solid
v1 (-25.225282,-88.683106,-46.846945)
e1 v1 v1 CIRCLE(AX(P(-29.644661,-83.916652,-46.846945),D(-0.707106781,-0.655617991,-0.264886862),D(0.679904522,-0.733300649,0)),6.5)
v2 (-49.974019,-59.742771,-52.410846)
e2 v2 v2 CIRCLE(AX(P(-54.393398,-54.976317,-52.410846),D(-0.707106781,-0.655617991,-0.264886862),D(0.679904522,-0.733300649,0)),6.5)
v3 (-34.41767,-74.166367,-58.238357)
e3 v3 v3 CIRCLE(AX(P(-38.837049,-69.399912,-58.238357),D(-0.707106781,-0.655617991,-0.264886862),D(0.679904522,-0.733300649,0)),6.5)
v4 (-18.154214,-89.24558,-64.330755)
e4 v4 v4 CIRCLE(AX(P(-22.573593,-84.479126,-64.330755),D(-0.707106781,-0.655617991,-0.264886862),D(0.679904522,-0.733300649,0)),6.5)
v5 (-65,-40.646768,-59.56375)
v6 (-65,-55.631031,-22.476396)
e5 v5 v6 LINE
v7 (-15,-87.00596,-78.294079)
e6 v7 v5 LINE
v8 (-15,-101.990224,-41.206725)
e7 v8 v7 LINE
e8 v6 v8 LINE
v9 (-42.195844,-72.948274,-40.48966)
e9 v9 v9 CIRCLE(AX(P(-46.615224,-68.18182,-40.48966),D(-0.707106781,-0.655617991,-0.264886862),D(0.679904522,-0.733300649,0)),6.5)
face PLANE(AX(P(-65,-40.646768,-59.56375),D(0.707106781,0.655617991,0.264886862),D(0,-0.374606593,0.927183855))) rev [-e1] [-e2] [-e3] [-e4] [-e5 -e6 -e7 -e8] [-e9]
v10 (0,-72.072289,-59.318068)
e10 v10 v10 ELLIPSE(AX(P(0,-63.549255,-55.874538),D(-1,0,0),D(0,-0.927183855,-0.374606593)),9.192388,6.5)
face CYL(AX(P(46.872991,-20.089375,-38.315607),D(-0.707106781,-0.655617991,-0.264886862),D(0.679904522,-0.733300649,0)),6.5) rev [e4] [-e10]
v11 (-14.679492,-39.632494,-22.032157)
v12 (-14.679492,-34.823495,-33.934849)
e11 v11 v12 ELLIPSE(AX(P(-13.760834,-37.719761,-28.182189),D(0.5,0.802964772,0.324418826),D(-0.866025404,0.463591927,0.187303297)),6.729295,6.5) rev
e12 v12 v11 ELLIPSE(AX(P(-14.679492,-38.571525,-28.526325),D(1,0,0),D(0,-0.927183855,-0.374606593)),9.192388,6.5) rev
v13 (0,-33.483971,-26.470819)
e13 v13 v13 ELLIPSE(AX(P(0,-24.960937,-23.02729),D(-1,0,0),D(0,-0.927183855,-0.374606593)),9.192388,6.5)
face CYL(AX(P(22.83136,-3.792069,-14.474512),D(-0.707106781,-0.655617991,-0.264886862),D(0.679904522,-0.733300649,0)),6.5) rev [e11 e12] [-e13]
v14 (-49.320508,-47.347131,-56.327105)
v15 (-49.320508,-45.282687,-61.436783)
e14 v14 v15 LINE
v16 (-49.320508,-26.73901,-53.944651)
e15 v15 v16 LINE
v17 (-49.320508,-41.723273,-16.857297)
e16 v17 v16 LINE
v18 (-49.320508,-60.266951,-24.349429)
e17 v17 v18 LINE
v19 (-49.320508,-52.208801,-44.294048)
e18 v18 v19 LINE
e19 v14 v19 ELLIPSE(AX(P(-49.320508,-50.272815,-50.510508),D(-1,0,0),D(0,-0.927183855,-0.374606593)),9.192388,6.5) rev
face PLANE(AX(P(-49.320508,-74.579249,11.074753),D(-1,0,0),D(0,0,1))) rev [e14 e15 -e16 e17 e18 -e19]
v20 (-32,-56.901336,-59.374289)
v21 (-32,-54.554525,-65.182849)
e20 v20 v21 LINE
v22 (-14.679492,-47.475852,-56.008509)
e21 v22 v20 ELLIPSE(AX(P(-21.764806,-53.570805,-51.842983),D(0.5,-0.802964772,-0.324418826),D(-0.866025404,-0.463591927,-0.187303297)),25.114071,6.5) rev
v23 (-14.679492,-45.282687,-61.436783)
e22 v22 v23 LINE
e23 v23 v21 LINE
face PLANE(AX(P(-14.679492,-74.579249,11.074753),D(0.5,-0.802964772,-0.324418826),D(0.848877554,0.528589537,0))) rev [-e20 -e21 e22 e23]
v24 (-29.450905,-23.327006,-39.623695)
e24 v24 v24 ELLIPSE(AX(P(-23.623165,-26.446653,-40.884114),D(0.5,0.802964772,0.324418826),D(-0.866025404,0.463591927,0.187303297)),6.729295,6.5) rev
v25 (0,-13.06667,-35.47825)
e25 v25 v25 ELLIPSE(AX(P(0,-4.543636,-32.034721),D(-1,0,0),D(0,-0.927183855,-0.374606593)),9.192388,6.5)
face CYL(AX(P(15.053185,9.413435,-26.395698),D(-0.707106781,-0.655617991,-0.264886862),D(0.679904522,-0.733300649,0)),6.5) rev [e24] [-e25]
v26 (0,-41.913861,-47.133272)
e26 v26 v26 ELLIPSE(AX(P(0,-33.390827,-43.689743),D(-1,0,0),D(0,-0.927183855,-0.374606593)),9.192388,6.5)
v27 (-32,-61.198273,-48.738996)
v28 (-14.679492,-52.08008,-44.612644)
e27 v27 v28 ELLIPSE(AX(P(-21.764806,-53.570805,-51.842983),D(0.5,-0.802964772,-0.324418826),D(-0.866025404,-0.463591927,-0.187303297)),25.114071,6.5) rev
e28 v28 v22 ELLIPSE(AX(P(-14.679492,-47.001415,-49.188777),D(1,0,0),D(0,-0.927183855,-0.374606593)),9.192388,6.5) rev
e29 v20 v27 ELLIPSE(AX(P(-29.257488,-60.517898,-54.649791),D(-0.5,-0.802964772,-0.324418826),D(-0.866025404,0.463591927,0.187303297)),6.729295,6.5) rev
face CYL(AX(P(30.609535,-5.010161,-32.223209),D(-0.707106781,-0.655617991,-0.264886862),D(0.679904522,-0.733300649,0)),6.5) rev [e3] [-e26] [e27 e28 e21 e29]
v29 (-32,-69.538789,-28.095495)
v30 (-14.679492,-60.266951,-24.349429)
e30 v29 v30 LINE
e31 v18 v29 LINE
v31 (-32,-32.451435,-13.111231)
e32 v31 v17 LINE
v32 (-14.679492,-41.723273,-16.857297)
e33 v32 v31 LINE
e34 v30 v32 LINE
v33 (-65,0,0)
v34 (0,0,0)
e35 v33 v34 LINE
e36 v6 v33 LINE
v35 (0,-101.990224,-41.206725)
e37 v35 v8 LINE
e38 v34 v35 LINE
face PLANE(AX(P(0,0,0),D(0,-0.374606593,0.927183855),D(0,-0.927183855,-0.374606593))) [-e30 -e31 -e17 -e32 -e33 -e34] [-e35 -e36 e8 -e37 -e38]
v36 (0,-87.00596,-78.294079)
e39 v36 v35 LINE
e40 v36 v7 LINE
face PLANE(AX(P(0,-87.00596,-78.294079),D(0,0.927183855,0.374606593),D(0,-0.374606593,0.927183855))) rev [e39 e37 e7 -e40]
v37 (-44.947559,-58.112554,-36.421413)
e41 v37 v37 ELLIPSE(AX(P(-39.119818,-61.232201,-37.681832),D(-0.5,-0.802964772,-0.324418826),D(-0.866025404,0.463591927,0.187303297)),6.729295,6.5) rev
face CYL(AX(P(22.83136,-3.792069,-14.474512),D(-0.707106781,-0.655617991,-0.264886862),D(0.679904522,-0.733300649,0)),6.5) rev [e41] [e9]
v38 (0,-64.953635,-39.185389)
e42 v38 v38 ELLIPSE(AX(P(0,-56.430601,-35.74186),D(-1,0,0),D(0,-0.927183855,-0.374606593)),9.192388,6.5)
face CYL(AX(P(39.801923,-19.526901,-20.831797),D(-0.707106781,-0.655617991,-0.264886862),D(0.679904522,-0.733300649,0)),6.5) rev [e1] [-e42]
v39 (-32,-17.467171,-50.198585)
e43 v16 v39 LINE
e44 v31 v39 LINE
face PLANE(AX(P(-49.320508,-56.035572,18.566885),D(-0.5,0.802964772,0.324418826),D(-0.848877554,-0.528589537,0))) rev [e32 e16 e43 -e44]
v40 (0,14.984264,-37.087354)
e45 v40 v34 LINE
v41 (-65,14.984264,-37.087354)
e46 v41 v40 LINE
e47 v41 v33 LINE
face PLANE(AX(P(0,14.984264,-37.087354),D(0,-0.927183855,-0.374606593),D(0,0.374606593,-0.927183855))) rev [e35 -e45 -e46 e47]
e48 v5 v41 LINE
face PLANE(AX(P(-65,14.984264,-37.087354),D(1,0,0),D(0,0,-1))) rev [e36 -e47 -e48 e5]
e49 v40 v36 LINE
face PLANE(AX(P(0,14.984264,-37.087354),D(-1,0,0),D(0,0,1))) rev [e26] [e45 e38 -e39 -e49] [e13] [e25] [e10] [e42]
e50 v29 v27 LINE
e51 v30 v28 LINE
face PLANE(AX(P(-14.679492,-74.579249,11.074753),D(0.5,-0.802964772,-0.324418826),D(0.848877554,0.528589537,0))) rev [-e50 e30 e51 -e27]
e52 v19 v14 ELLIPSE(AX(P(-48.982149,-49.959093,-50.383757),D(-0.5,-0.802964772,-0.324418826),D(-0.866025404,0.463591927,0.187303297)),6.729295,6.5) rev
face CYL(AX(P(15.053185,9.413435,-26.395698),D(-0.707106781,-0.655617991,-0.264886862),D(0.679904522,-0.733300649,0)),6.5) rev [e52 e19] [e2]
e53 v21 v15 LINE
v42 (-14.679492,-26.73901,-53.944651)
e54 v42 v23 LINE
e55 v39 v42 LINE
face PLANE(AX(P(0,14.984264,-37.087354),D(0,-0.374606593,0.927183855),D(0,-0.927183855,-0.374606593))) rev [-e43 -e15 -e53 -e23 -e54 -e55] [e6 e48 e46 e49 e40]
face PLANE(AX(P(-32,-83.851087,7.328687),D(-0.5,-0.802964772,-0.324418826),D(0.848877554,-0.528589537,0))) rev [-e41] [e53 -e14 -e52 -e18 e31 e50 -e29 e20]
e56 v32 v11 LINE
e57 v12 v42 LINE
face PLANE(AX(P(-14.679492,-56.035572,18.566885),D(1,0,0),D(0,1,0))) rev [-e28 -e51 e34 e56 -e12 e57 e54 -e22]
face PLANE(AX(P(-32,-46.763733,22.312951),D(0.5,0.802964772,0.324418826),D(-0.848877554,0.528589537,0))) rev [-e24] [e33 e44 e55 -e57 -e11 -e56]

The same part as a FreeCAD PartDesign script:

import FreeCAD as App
import Part
import Sketcher
from FreeCAD import Vector
Q = App.Units.Quantity


def edges_at(feature, points):
    """Names of the edges that pass closest to the given points."""
    edges = feature.Shape.Edges
    near = lambda p: min(range(len(edges)), key=lambda i: edges[i].distToShape(Part.Vertex(*p))[0])
    return sorted({f"Edge{near(p) + 1}" for p in points})


def add_polygon(sketch, points):
    """Adds a closed chain of lines whose ends are joined by coincident constraints."""
    first, n = sketch.GeometryCount, len(points)
    for a, b in zip(points, points[1:] + points[:1]):
        sketch.addGeometry(Part.LineSegment(App.Vector(*a, 0), App.Vector(*b, 0)), False)
    for i in range(n):
        sketch.addConstraint(Sketcher.Constraint("Coincident", first + i, 2, first + (i + 1) % n, 1))

doc = App.newDocument("Part")
body = doc.addObject("PartDesign::Body", "Body")

sketch1 = doc.addObject("Sketcher::SketchObject", "Sketch")
body.addObject(sketch1)
sketch1.Placement = App.Placement(Vector(0, 0, 0), App.Rotation(Vector(0, -0.927183855, -0.374606593), Vector(-1, 0, 0), Vector(0, 0.374606593, -0.927183855), "ZXY"))
add_polygon(sketch1, [(0, 65), (0, 0), (110, 0), (110, 65)])
sketch1.addConstraint([
    Sketcher.Constraint("Vertical", 0),
    Sketcher.Constraint("Horizontal", 1),
    Sketcher.Constraint("Vertical", 2),
    Sketcher.Constraint("Horizontal", 3),
    Sketcher.Constraint("Coincident", 0, 2, -1, 1),
    Sketcher.Constraint("DistanceX", 1, 1, 1, 2, 110.0),
    Sketcher.Constraint("DistanceY", 0, 2, 0, 1, 65.0),
])
pad1 = doc.addObject("PartDesign::Pad", "Pad")
body.addObject(pad1)
pad1.Profile = sketch1
pad1.Length = 40
doc.recompute()

chamfer = doc.addObject("PartDesign::Chamfer", "Chamfer")
body.addObject(chamfer)
chamfer.Base = (pad1, edges_at(pad1, [(-65, -94.498, -59.75)]))
chamfer.Size = 50

sketch2 = doc.addObject("Sketcher::SketchObject", "Sketch001")
body.addObject(sketch2)
sketch2.Placement = App.Placement(Vector(-62.5, -57.948991, -23.412912), App.Rotation(Vector(0.194241708, 0.180097776, -0.964279498), Vector(0.679904522, -0.733300648, 0), Vector(-0.707106781, -0.655617991, -0.264886862), "ZXY"))
sketch2.addGeometry([
    Part.Circle(Vector(24.302117, 41.380596, 0), Vector(0, 0, 1), 6.5),
    Part.Circle(Vector(36.115509, 24.485515, 0), Vector(0, 0, 1), 6.5),
    Part.Circle(Vector(17.709335, 18.303871, 0), Vector(0, 0, 1), 6.5),
    Part.Circle(Vector(30.072126, 3.331851, 0), Vector(0, 0, 1), 6.5),
    Part.Circle(Vector(42.433592, 46.60071, 0), Vector(0, 0, 1), 6.5),
], False)
sketch2.addConstraint([
    Sketcher.Constraint("Equal", 0, 1),
    Sketcher.Constraint("Equal", 1, 2),
    Sketcher.Constraint("Equal", 2, 3),
    Sketcher.Constraint("Equal", 3, 4),
    Sketcher.Constraint("Diameter", 0, 13.0),
    Sketcher.Constraint("DistanceX", -1, 1, 1, 3, 36.115509),
    Sketcher.Constraint("DistanceY", -1, 1, 2, 3, 18.303871),
    Sketcher.Constraint("DistanceY", -1, 1, 3, 3, 3.331851),
    Sketcher.Constraint("DistanceY", -1, 1, 4, 3, 46.60071),
    Sketcher.Constraint("DistanceY", 1, 3, 0, 3, 16.895081),
    Sketcher.Constraint("DistanceX", 2, 3, 3, 3, 12.362791),
    Sketcher.Constraint("DistanceX", 0, 3, 3, 3, 5.770009),
    Sketcher.Constraint("DistanceX", -1, 1, 0, 3, 24.302117),
    Sketcher.Constraint("DistanceY", -1, 1, 0, 3, 41.380596),
    Sketcher.Constraint("DistanceX", -1, 1, 4, 3, 42.433592),
])
pocket1 = doc.addObject("PartDesign::Pocket", "Pocket")
body.addObject(pocket1)
pocket1.Profile = sketch2
pocket1.Type = "ThroughAll"

sketch3 = doc.addObject("Sketcher::SketchObject", "Sketch002")
body.addObject(sketch3)
sketch3.Placement = App.Placement(Vector(0, 14.984264, -37.087354), App.Rotation(Vector(0, -0.927183855, -0.374606593), Vector(-1, 0, 0), Vector(0, 0.374606593, -0.927183855), "ZXY"))
add_polygon(sketch3, [(45, 14.679492), (65, 14.679492), (75, 32), (65, 49.320508), (45, 49.320508), (35, 32)])
sketch3.addConstraint([
    Sketcher.Constraint("Horizontal", 0),
    Sketcher.Constraint("Horizontal", 3),
    Sketcher.Constraint("Parallel", 1, 4),
    Sketcher.Constraint("Parallel", 2, 5),
    Sketcher.Constraint("Horizontal", 1, 2, 4, 2),
    Sketcher.Constraint("Vertical", 0, 2, 2, 2),
    Sketcher.Constraint("Vertical", 3, 2, 5, 2),
    Sketcher.Constraint("DistanceX", 0, 1, 0, 2, 20.0),
    Sketcher.Constraint("Angle", 1, Q("60 deg")),
    Sketcher.Constraint("Distance", 1, 20.0),
    Sketcher.Constraint("DistanceX", -1, 1, 0, 2, 65.0),
    Sketcher.Constraint("DistanceY", -1, 1, 1, 2, 32.0),
])
pocket2 = doc.addObject("PartDesign::Pocket", "Pocket001")
body.addObject(pocket2)
pocket2.Profile = sketch3
pocket2.Type = "ThroughAll"

doc.recompute()
